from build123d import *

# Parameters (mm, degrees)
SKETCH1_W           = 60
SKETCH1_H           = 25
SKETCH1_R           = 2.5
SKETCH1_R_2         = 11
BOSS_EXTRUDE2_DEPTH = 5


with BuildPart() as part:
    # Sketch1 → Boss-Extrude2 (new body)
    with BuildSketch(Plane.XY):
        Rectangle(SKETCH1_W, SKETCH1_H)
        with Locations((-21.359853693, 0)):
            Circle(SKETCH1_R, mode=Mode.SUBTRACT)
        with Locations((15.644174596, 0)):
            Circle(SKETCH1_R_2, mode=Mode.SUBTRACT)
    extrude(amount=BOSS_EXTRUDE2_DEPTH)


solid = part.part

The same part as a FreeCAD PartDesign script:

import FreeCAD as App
import Part
import Sketcher

doc = App.newDocument("Part")
params = doc.addObject("Spreadsheet::Sheet", "Params")
for row, (alias, value) in enumerate([
    ("sketch1_diameter", "5 mm"),
    ("sketch1_diameter2", "22 mm"),
    ("sketch1_width", "60 mm"),
    ("sketch1_height", "25 mm"),
    ("pad1_length", "5 mm"),
], start=1):
    params.set(f"A{row}", alias)
    params.set(f"B{row}", "=" + value)
    params.setAlias(f"B{row}", alias)

body = doc.addObject("PartDesign::Body", "Body")

# Sketch on XY plane
sketch1 = body.newObject("Sketcher::SketchObject", "Sketch")
sketch1.AttachmentSupport = (doc.getObject("XY_Plane"), [""])
sketch1.MapMode = "FlatFace"
sketch1.addGeometry(Part.LineSegment(App.Vector(-30, 12.5, 0), App.Vector(-30, -12.5, 0)), False)
sketch1.addGeometry(Part.LineSegment(App.Vector(-30, -12.5, 0), App.Vector(30, -12.5, 0)), False)
sketch1.addGeometry(Part.LineSegment(App.Vector(30, -12.5, 0), App.Vector(30, 12.5, 0)), False)
sketch1.addGeometry(Part.LineSegment(App.Vector(30, 12.5, 0), App.Vector(-30, 12.5, 0)), False)
sketch1.addGeometry(Part.Circle(App.Vector(-21.4, 0, 0), App.Vector(0, 0, 1), 2.5), False)
sketch1.addGeometry(Part.Circle(App.Vector(15.6, 0, 0), App.Vector(0, 0, 1), 11), False)
sketch1.addConstraint(Sketcher.Constraint("Coincident", 0, 2, 1, 1))
sketch1.addConstraint(Sketcher.Constraint("Coincident", 1, 2, 2, 1))
sketch1.addConstraint(Sketcher.Constraint("Coincident", 2, 2, 3, 1))
sketch1.addConstraint(Sketcher.Constraint("Coincident", 3, 2, 0, 1))
sketch1.addConstraint(Sketcher.Constraint("Vertical", 0))
sketch1.addConstraint(Sketcher.Constraint("Horizontal", 1))
sketch1.addConstraint(Sketcher.Constraint("Vertical", 2))
sketch1.addConstraint(Sketcher.Constraint("Horizontal", 3))
sketch1.addConstraint(Sketcher.Constraint("Symmetric", 0, 2, 2, 2, -1, 1))
sketch1.addConstraint(Sketcher.Constraint("PointOnObject", 4, 3, -1))
sketch1.addConstraint(Sketcher.Constraint("PointOnObject", 5, 3, -1))
sketch1.addConstraint(Sketcher.Constraint("Diameter", 4, 5.0))
sketch1.addConstraint(Sketcher.Constraint("Diameter", 5, 22.0))
sketch1.addConstraint(Sketcher.Constraint("DistanceX", 1, 1, 1, 2, 60.0))
sketch1.addConstraint(Sketcher.Constraint("DistanceY", 0, 2, 0, 1, 25.0))
sketch1.addConstraint(Sketcher.Constraint("DistanceX", 4, 3, 5, 3, 37.004028))
sketch1.addConstraint(Sketcher.Constraint("DistanceX", 4, 3, -1, 1, 21.359854))
sketch1.setExpression("Constraints[11]", "Params.sketch1_diameter")
sketch1.setExpression("Constraints[12]", "Params.sketch1_diameter2")
sketch1.setExpression("Constraints[13]", "Params.sketch1_width")
sketch1.setExpression("Constraints[14]", "Params.sketch1_height")
pad1 = body.newObject("PartDesign::Pad", "Pad")
pad1.Profile = sketch1
pad1.setExpression("Length", "Params.pad1_length")

doc.recompute()
